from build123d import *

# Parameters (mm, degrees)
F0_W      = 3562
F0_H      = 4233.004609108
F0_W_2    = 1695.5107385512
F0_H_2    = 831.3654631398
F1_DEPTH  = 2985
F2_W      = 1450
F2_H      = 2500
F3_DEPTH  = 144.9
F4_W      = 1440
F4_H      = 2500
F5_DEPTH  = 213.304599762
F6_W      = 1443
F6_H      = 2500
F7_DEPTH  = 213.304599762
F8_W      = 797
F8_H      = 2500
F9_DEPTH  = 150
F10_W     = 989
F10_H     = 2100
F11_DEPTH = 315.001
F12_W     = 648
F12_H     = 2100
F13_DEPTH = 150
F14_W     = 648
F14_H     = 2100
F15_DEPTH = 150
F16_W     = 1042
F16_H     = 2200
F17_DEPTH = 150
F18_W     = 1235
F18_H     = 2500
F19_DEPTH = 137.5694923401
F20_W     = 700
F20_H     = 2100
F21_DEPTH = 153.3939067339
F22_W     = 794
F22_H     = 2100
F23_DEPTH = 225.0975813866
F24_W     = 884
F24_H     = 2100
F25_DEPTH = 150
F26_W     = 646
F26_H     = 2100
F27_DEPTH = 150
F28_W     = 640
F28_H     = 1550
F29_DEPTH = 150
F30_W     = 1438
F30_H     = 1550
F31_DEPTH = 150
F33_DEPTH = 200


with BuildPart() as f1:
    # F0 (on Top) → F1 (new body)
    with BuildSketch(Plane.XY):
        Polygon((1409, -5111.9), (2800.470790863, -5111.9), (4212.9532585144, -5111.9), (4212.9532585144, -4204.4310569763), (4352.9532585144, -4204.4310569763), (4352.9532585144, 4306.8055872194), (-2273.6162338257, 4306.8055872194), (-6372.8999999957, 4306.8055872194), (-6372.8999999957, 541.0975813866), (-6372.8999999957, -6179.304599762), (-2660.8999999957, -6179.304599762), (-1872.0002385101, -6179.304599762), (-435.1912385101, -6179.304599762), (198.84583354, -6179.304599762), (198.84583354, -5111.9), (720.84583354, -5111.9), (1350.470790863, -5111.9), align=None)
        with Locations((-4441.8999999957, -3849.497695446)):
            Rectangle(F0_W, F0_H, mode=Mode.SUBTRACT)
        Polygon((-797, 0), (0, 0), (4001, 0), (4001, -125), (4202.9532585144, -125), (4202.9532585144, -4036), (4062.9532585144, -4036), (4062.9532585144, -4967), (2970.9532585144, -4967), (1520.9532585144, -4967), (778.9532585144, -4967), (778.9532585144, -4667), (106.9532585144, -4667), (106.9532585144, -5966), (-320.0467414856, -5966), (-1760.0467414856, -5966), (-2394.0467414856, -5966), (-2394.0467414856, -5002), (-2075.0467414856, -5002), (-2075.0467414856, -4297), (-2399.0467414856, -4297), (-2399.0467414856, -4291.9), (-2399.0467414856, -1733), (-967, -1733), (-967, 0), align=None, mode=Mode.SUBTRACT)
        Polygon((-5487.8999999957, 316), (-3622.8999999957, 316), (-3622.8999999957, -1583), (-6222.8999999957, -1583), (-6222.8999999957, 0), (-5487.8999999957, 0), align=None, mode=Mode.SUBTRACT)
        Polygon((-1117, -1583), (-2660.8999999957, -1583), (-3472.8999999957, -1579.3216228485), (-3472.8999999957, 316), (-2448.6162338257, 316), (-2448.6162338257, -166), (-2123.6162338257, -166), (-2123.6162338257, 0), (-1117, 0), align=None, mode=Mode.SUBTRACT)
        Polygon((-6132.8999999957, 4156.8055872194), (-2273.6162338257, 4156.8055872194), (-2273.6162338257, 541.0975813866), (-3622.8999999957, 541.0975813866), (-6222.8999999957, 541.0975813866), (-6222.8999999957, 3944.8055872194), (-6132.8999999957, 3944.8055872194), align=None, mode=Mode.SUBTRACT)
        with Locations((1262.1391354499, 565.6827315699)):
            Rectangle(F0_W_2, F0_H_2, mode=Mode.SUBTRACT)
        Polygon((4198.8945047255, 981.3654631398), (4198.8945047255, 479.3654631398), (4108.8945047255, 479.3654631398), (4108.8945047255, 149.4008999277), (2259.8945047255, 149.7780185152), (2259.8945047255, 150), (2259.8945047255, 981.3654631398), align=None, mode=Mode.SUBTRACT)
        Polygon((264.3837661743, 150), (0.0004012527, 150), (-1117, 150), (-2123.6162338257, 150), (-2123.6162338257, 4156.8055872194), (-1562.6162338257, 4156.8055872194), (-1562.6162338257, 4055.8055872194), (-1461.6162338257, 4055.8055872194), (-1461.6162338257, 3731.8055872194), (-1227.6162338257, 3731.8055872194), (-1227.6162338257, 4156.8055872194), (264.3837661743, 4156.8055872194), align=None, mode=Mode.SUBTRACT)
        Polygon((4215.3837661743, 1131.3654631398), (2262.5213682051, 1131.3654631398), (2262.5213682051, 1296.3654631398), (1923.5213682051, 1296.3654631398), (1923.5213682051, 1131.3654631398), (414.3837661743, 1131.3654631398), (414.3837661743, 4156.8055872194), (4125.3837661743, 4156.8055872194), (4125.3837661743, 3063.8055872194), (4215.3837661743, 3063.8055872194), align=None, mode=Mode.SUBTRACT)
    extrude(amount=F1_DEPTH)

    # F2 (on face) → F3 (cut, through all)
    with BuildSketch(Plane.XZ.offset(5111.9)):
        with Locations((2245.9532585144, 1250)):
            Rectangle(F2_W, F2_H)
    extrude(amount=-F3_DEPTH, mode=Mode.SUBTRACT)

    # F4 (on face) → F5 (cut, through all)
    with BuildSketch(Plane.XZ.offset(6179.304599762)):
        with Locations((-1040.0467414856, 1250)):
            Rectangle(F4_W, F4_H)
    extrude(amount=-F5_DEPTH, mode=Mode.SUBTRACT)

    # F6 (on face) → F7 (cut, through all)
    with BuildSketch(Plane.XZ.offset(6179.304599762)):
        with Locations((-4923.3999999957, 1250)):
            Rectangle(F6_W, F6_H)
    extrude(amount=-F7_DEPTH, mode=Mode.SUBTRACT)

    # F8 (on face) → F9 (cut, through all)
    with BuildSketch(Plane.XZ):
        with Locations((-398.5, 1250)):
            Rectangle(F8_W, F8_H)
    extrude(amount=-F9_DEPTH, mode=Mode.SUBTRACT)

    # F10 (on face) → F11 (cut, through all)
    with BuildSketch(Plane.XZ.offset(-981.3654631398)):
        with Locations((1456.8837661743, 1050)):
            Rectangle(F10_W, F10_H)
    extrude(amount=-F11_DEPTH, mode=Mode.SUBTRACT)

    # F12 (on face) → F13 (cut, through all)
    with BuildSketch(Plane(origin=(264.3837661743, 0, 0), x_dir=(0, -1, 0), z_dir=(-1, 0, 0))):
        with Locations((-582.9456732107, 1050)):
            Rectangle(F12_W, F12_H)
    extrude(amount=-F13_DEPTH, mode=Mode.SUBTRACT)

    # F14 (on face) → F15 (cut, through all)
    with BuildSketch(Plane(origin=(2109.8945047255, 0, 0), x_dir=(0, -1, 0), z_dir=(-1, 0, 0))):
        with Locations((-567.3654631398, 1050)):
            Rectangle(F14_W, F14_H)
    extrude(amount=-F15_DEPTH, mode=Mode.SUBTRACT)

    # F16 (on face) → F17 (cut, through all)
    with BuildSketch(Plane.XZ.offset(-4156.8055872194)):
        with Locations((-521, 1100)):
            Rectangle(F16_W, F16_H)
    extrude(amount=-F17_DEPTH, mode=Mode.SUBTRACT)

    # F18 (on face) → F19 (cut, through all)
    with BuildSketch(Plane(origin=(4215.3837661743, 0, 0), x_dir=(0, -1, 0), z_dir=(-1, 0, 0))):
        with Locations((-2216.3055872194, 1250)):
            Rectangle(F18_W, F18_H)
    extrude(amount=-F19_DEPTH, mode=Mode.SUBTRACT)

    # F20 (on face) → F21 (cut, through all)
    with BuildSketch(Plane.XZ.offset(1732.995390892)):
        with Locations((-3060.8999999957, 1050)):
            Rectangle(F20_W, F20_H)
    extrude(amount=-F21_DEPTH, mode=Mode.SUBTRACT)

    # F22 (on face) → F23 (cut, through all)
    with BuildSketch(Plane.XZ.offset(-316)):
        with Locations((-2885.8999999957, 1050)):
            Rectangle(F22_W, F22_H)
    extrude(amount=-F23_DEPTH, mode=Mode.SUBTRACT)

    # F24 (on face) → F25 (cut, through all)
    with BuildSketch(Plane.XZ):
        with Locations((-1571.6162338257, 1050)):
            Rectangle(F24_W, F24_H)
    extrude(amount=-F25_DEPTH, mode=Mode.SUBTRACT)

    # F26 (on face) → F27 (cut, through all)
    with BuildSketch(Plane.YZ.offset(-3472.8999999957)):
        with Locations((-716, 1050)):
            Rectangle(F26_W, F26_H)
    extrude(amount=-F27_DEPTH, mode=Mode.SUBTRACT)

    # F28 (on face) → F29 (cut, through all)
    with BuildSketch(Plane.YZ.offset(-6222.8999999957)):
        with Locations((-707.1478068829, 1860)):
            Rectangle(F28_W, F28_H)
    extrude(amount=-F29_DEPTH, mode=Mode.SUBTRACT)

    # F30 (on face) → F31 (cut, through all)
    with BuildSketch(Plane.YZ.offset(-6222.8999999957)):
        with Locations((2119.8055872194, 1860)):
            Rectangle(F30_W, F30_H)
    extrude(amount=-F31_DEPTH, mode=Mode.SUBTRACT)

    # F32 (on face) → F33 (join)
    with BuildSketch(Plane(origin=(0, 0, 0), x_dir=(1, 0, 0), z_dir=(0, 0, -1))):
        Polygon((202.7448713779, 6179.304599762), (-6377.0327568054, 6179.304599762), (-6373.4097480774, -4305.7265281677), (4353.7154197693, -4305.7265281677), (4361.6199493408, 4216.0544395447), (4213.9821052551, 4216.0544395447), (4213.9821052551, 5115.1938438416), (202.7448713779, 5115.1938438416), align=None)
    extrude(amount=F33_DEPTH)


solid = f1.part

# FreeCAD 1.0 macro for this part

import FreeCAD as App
import Part
import Sketcher

V = App.Vector
Q = App.Units.Quantity

doc = App.newDocument("Part")
body = doc.addObject("PartDesign::Body", "Body")

# Sketch on XY plane
sketch1 = body.newObject("Sketcher::SketchObject", "Sketch")
sketch1.AttachmentSupport = (doc.getObject("XY_Plane"), [""])
sketch1.MapMode = "FlatFace"
sketch1.addGeometry([
    Part.LineSegment(V(4212.953259, -5111.9, 0), V(4212.953259, -4204.431057, 0)),  # 0
    Part.LineSegment(V(4212.953259, -4204.431057, 0), V(4352.953259, -4204.431057, 0)),  # 1
    Part.LineSegment(V(4352.953259, -4204.431057, 0), V(4352.953259, 4306.805587, 0)),  # 2
    Part.LineSegment(V(4352.953259, 4306.805587, 0), V(-6372.9, 4306.805587, 0)),  # 3
    Part.LineSegment(V(-6372.9, 4306.805587, 0), V(-6372.9, -6179.3046, 0)),  # 4
    Part.LineSegment(V(-6372.9, -6179.3046, 0), V(198.845834, -6179.3046, 0)),  # 5
    Part.LineSegment(V(198.845834, -6179.3046, 0), V(198.845834, -5111.9, 0)),  # 6
    Part.LineSegment(V(198.845834, -5111.9, 0), V(4212.953259, -5111.9, 0)),  # 7
    Part.LineSegment(V(-2660.9, -5966, 0), V(-6222.9, -5966, 0)),  # 8
    Part.LineSegment(V(-6222.9, -5966, 0), V(-6222.9, -1732.995391, 0)),  # 9
    Part.LineSegment(V(-6222.9, -1732.995391, 0), V(-2660.9, -1732.995391, 0)),  # 10
    Part.LineSegment(V(-2660.9, -1732.995391, 0), V(-2660.9, -5966, 0)),  # 11
    Part.LineSegment(V(-967, 0, 0), V(4001, 0, 0)),  # 12
    Part.LineSegment(V(4001, 0, 0), V(4001, -125, 0)),  # 13
    Part.LineSegment(V(4001, -125, 0), V(4202.953259, -125, 0)),  # 14
    Part.LineSegment(V(4202.953259, -125, 0), V(4202.953259, -4036, 0)),  # 15
    Part.LineSegment(V(4202.953259, -4036, 0), V(4062.953259, -4036, 0)),  # 16
    Part.LineSegment(V(4062.953259, -4036, 0), V(4062.953259, -4967, 0)),  # 17
    Part.LineSegment(V(4062.953259, -4967, 0), V(778.953259, -4967, 0)),  # 18
    Part.LineSegment(V(778.953259, -4967, 0), V(778.953259, -4667, 0)),  # 19
    Part.LineSegment(V(778.953259, -4667, 0), V(106.953259, -4667, 0)),  # 20
    Part.LineSegment(V(106.953259, -4667, 0), V(106.953259, -5966, 0)),  # 21
    Part.LineSegment(V(106.953259, -5966, 0), V(-2394.046741, -5966, 0)),  # 22
    Part.LineSegment(V(-2394.046741, -5966, 0), V(-2394.046741, -5002, 0)),  # 23
    Part.LineSegment(V(-2394.046741, -5002, 0), V(-2075.046741, -5002, 0)),  # 24
    Part.LineSegment(V(-2075.046741, -5002, 0), V(-2075.046741, -4297, 0)),  # 25
    Part.LineSegment(V(-2075.046741, -4297, 0), V(-2399.046741, -4297, 0)),  # 26
    Part.LineSegment(V(-2399.046741, -4297, 0), V(-2399.046741, -1733, 0)),  # 27
    Part.LineSegment(V(-2399.046741, -1733, 0), V(-967, -1733, 0)),  # 28
    Part.LineSegment(V(-967, -1733, 0), V(-967, 0, 0)),  # 29
    Part.LineSegment(V(-5487.9, 0, 0), V(-5487.9, 316, 0)),  # 30
    Part.LineSegment(V(-5487.9, 316, 0), V(-3622.9, 316, 0)),  # 31
    Part.LineSegment(V(-3622.9, 316, 0), V(-3622.9, -1583, 0)),  # 32
    Part.LineSegment(V(-3622.9, -1583, 0), V(-6222.9, -1583, 0)),  # 33
    Part.LineSegment(V(-6222.9, -1583, 0), V(-6222.9, 0, 0)),  # 34
    Part.LineSegment(V(-6222.9, 0, 0), V(-5487.9, 0, 0)),  # 35
    Part.LineSegment(V(-1117, 0, 0), V(-1117, -1583, 0)),  # 36
    Part.LineSegment(V(-1117, -1583, 0), V(-2660.9, -1583, 0)),  # 37
    Part.LineSegment(V(-2660.9, -1583, 0), V(-3472.9, -1579.321623, 0)),  # 38
    Part.LineSegment(V(-3472.9, -1579.321623, 0), V(-3472.9, 316, 0)),  # 39
    Part.LineSegment(V(-3472.9, 316, 0), V(-2448.616234, 316, 0)),  # 40
    Part.LineSegment(V(-2448.616234, 316, 0), V(-2448.616234, -166, 0)),  # 41
    Part.LineSegment(V(-2448.616234, -166, 0), V(-2123.616234, -166, 0)),  # 42
    Part.LineSegment(V(-2123.616234, -166, 0), V(-2123.616234, 0, 0)),  # 43
    Part.LineSegment(V(-2123.616234, 0, 0), V(-1117, 0, 0)),  # 44
    Part.LineSegment(V(-6132.9, 3944.805587, 0), V(-6132.9, 4156.805587, 0)),  # 45
    Part.LineSegment(V(-6132.9, 4156.805587, 0), V(-2273.616234, 4156.805587, 0)),  # 46
    Part.LineSegment(V(-2273.616234, 4156.805587, 0), V(-2273.616234, 541.097581, 0)),  # 47
    Part.LineSegment(V(-2273.616234, 541.097581, 0), V(-6222.9, 541.097581, 0)),  # 48
    Part.LineSegment(V(-6222.9, 541.097581, 0), V(-6222.9, 3944.805587, 0)),  # 49
    Part.LineSegment(V(-6222.9, 3944.805587, 0), V(-6132.9, 3944.805587, 0)),  # 50
    Part.LineSegment(V(2109.894505, 150, 0), V(414.383766, 150, 0)),  # 51
    Part.LineSegment(V(414.383766, 150, 0), V(414.383766, 981.365463, 0)),  # 52
    Part.LineSegment(V(414.383766, 981.365463, 0), V(2109.894505, 981.365463, 0)),  # 53
    Part.LineSegment(V(2109.894505, 981.365463, 0), V(2109.894505, 150, 0)),  # 54
    Part.LineSegment(V(2259.894505, 981.365463, 0), V(4198.894505, 981.365463, 0)),  # 55
    Part.LineSegment(V(4198.894505, 981.365463, 0), V(4198.894505, 479.365463, 0)),  # 56
    Part.LineSegment(V(4198.894505, 479.365463, 0), V(4108.894505, 479.365463, 0)),  # 57
    Part.LineSegment(V(4108.894505, 479.365463, 0), V(4108.894505, 149.4009, 0)),  # 58
    Part.LineSegment(V(4108.894505, 149.4009, 0), V(2259.894505, 149.778019, 0)),  # 59
    Part.LineSegment(V(2259.894505, 149.778019, 0), V(2259.894505, 981.365463, 0)),  # 60
    Part.LineSegment(V(264.383766, 4156.805587, 0), V(264.383766, 150, 0)),  # 61
    Part.LineSegment(V(264.383766, 150, 0), V(-2123.616234, 150, 0)),  # 62
    Part.LineSegment(V(-2123.616234, 150, 0), V(-2123.616234, 4156.805587, 0)),  # 63
    Part.LineSegment(V(-2123.616234, 4156.805587, 0), V(-1562.616234, 4156.805587, 0)),  # 64
    Part.LineSegment(V(-1562.616234, 4156.805587, 0), V(-1562.616234, 4055.805587, 0)),  # 65
    Part.LineSegment(V(-1562.616234, 4055.805587, 0), V(-1461.616234, 4055.805587, 0)),  # 66
    Part.LineSegment(V(-1461.616234, 4055.805587, 0), V(-1461.616234, 3731.805587, 0)),  # 67
    Part.LineSegment(V(-1461.616234, 3731.805587, 0), V(-1227.616234, 3731.805587, 0)),  # 68
    Part.LineSegment(V(-1227.616234, 3731.805587, 0), V(-1227.616234, 4156.805587, 0)),  # 69
    Part.LineSegment(V(-1227.616234, 4156.805587, 0), V(264.383766, 4156.805587, 0)),  # 70
    Part.LineSegment(V(4215.383766, 3063.805587, 0), V(4215.383766, 1131.365463, 0)),  # 71
    Part.LineSegment(V(4215.383766, 1131.365463, 0), V(2262.521368, 1131.365463, 0)),  # 72
    Part.LineSegment(V(2262.521368, 1131.365463, 0), V(2262.521368, 1296.365463, 0)),  # 73
    Part.LineSegment(V(2262.521368, 1296.365463, 0), V(1923.521368, 1296.365463, 0)),  # 74
    Part.LineSegment(V(1923.521368, 1296.365463, 0), V(1923.521368, 1131.365463, 0)),  # 75
    Part.LineSegment(V(1923.521368, 1131.365463, 0), V(414.383766, 1131.365463, 0)),  # 76
    Part.LineSegment(V(414.383766, 1131.365463, 0), V(414.383766, 4156.805587, 0)),  # 77
    Part.LineSegment(V(414.383766, 4156.805587, 0), V(4125.383766, 4156.805587, 0)),  # 78
    Part.LineSegment(V(4125.383766, 4156.805587, 0), V(4125.383766, 3063.805587, 0)),  # 79
    Part.LineSegment(V(4125.383766, 3063.805587, 0), V(4215.383766, 3063.805587, 0)),  # 80
], False)
sketch1.addConstraint([
    Sketcher.Constraint("Coincident", 0, 2, 1, 1),
    Sketcher.Constraint("Coincident", 1, 2, 2, 1),
    Sketcher.Constraint("Coincident", 2, 2, 3, 1),
    Sketcher.Constraint("Coincident", 3, 2, 4, 1),
    Sketcher.Constraint("Coincident", 4, 2, 5, 1),
    Sketcher.Constraint("Coincident", 5, 2, 6, 1),
    Sketcher.Constraint("Coincident", 6, 2, 7, 1),
    Sketcher.Constraint("Coincident", 7, 2, 0, 1),
    Sketcher.Constraint("Coincident", 8, 2, 9, 1),
    Sketcher.Constraint("Coincident", 9, 2, 10, 1),
    Sketcher.Constraint("Coincident", 10, 2, 11, 1),
    Sketcher.Constraint("Coincident", 11, 2, 8, 1),
    Sketcher.Constraint("Coincident", 12, 2, 13, 1),
    Sketcher.Constraint("Coincident", 13, 2, 14, 1),
    Sketcher.Constraint("Coincident", 14, 2, 15, 1),
    Sketcher.Constraint("Coincident", 15, 2, 16, 1),
    Sketcher.Constraint("Coincident", 16, 2, 17, 1),
    Sketcher.Constraint("Coincident", 17, 2, 18, 1),
    Sketcher.Constraint("Coincident", 18, 2, 19, 1),
    Sketcher.Constraint("Coincident", 19, 2, 20, 1),
    Sketcher.Constraint("Coincident", 20, 2, 21, 1),
    Sketcher.Constraint("Coincident", 21, 2, 22, 1),
    Sketcher.Constraint("Coincident", 22, 2, 23, 1),
    Sketcher.Constraint("Coincident", 23, 2, 24, 1),
    Sketcher.Constraint("Coincident", 24, 2, 25, 1),
    Sketcher.Constraint("Coincident", 25, 2, 26, 1),
    Sketcher.Constraint("Coincident", 26, 2, 27, 1),
    Sketcher.Constraint("Coincident", 27, 2, 28, 1),
    Sketcher.Constraint("Coincident", 28, 2, 29, 1),
    Sketcher.Constraint("Coincident", 29, 2, 12, 1),
    Sketcher.Constraint("Coincident", 30, 2, 31, 1),
    Sketcher.Constraint("Coincident", 31, 2, 32, 1),
    Sketcher.Constraint("Coincident", 32, 2, 33, 1),
    Sketcher.Constraint("Coincident", 33, 2, 34, 1),
    Sketcher.Constraint("Coincident", 34, 2, 35, 1),
    Sketcher.Constraint("Coincident", 35, 2, 30, 1),
    Sketcher.Constraint("Coincident", 36, 2, 37, 1),
    Sketcher.Constraint("Coincident", 37, 2, 38, 1),
    Sketcher.Constraint("Coincident", 38, 2, 39, 1),
    Sketcher.Constraint("Coincident", 39, 2, 40, 1),
    Sketcher.Constraint("Coincident", 40, 2, 41, 1),
    Sketcher.Constraint("Coincident", 41, 2, 42, 1),
    Sketcher.Constraint("Coincident", 42, 2, 43, 1),
    Sketcher.Constraint("Coincident", 43, 2, 44, 1),
    Sketcher.Constraint("Coincident", 44, 2, 36, 1),
    Sketcher.Constraint("Coincident", 45, 2, 46, 1),
    Sketcher.Constraint("Coincident", 46, 2, 47, 1),
    Sketcher.Constraint("Coincident", 47, 2, 48, 1),
    Sketcher.Constraint("Coincident", 48, 2, 49, 1),
    Sketcher.Constraint("Coincident", 49, 2, 50, 1),
    Sketcher.Constraint("Coincident", 50, 2, 45, 1),
    Sketcher.Constraint("Coincident", 51, 2, 52, 1),
    Sketcher.Constraint("Coincident", 52, 2, 53, 1),
    Sketcher.Constraint("Coincident", 53, 2, 54, 1),
    Sketcher.Constraint("Coincident", 54, 2, 51, 1),
    Sketcher.Constraint("Coincident", 55, 2, 56, 1),
    Sketcher.Constraint("Coincident", 56, 2, 57, 1),
    Sketcher.Constraint("Coincident", 57, 2, 58, 1),
    Sketcher.Constraint("Coincident", 58, 2, 59, 1),
    Sketcher.Constraint("Coincident", 59, 2, 60, 1),
    Sketcher.Constraint("Coincident", 60, 2, 55, 1),
    Sketcher.Constraint("Coincident", 61, 2, 62, 1),
    Sketcher.Constraint("Coincident", 62, 2, 63, 1),
    Sketcher.Constraint("Coincident", 63, 2, 64, 1),
    Sketcher.Constraint("Coincident", 64, 2, 65, 1),
    Sketcher.Constraint("Coincident", 65, 2, 66, 1),
    Sketcher.Constraint("Coincident", 66, 2, 67, 1),
    Sketcher.Constraint("Coincident", 67, 2, 68, 1),
    Sketcher.Constraint("Coincident", 68, 2, 69, 1),
    Sketcher.Constraint("Coincident", 69, 2, 70, 1),
    Sketcher.Constraint("Coincident", 70, 2, 61, 1),
    Sketcher.Constraint("Coincident", 71, 2, 72, 1),
    Sketcher.Constraint("Coincident", 72, 2, 73, 1),
    Sketcher.Constraint("Coincident", 73, 2, 74, 1),
    Sketcher.Constraint("Coincident", 74, 2, 75, 1),
    Sketcher.Constraint("Coincident", 75, 2, 76, 1),
    Sketcher.Constraint("Coincident", 76, 2, 77, 1),
    Sketcher.Constraint("Coincident", 77, 2, 78, 1),
    Sketcher.Constraint("Coincident", 78, 2, 79, 1),
    Sketcher.Constraint("Coincident", 79, 2, 80, 1),
    Sketcher.Constraint("Coincident", 80, 2, 71, 1),
    Sketcher.Constraint("Vertical", 0),
    Sketcher.Constraint("Horizontal", 1),
    Sketcher.Constraint("Vertical", 2),
    Sketcher.Constraint("Horizontal", 3),
    Sketcher.Constraint("Vertical", 4),
    Sketcher.Constraint("Horizontal", 5),
    Sketcher.Constraint("Vertical", 6),
    Sketcher.Constraint("Horizontal", 7),
    Sketcher.Constraint("Horizontal", 8),
    Sketcher.Constraint("Vertical", 9),
    Sketcher.Constraint("Horizontal", 10),
    Sketcher.Constraint("Vertical", 11),
    Sketcher.Constraint("Horizontal", 12),
    Sketcher.Constraint("Vertical", 13),
    Sketcher.Constraint("Horizontal", 14),
    Sketcher.Constraint("Vertical", 15),
    Sketcher.Constraint("Horizontal", 16),
    Sketcher.Constraint("Vertical", 17),
    Sketcher.Constraint("Horizontal", 18),
    Sketcher.Constraint("Vertical", 19),
    Sketcher.Constraint("Horizontal", 20),
    Sketcher.Constraint("Vertical", 21),
    Sketcher.Constraint("Horizontal", 22),
    Sketcher.Constraint("Vertical", 23),
    Sketcher.Constraint("Horizontal", 24),
    Sketcher.Constraint("Vertical", 25),
    Sketcher.Constraint("Horizontal", 26),
    Sketcher.Constraint("Vertical", 27),
    Sketcher.Constraint("Horizontal", 28),
    Sketcher.Constraint("Vertical", 29),
    Sketcher.Constraint("Vertical", 30),
    Sketcher.Constraint("Horizontal", 31),
    Sketcher.Constraint("Vertical", 32),
    Sketcher.Constraint("Horizontal", 33),
    Sketcher.Constraint("Vertical", 34),
    Sketcher.Constraint("Horizontal", 35),
    Sketcher.Constraint("Vertical", 36),
    Sketcher.Constraint("Horizontal", 37),
    Sketcher.Constraint("Vertical", 39),
    Sketcher.Constraint("Horizontal", 40),
    Sketcher.Constraint("Vertical", 41),
    Sketcher.Constraint("Horizontal", 42),
    Sketcher.Constraint("Vertical", 43),
    Sketcher.Constraint("Horizontal", 44),
    Sketcher.Constraint("Vertical", 45),
    Sketcher.Constraint("Horizontal", 46),
    Sketcher.Constraint("Vertical", 47),
    Sketcher.Constraint("Horizontal", 48),
    Sketcher.Constraint("Vertical", 49),
    Sketcher.Constraint("Horizontal", 50),
    Sketcher.Constraint("Horizontal", 51),
    Sketcher.Constraint("Vertical", 52),
    Sketcher.Constraint("Horizontal", 53),
    Sketcher.Constraint("Vertical", 54),
    Sketcher.Constraint("Horizontal", 55),
    Sketcher.Constraint("Vertical", 56),
    Sketcher.Constraint("Horizontal", 57),
    Sketcher.Constraint("Vertical", 58),
    Sketcher.Constraint("Vertical", 60),
    Sketcher.Constraint("Vertical", 61),
    Sketcher.Constraint("Horizontal", 62),
    Sketcher.Constraint("Vertical", 63),
    Sketcher.Constraint("Horizontal", 64),
    Sketcher.Constraint("Vertical", 65),
    Sketcher.Constraint("Horizontal", 66),
    Sketcher.Constraint("Vertical", 67),
    Sketcher.Constraint("Horizontal", 68),
    Sketcher.Constraint("Vertical", 69),
    Sketcher.Constraint("Horizontal", 70),
    Sketcher.Constraint("Vertical", 71),
    Sketcher.Constraint("Horizontal", 72),
    Sketcher.Constraint("Vertical", 73),
    Sketcher.Constraint("Horizontal", 74),
    Sketcher.Constraint("Vertical", 75),
    Sketcher.Constraint("Horizontal", 76),
    Sketcher.Constraint("Vertical", 77),
    Sketcher.Constraint("Horizontal", 78),
    Sketcher.Constraint("Vertical", 79),
    Sketcher.Constraint("Horizontal", 80),
    Sketcher.Constraint("PointOnObject", 12, 2, -1),
    Sketcher.Constraint("PointOnObject", 34, 2, -1),
    Sketcher.Constraint("PointOnObject", 43, 2, -1),
    Sketcher.Constraint("Horizontal", 11, 2, 21, 2),
    Sketcher.Constraint("Horizontal", 33, 2, 36, 2),
    Sketcher.Constraint("Horizontal", 31, 2, 39, 2),
    Sketcher.Constraint("Horizontal", 53, 2, 55, 2),
    Sketcher.Constraint("Horizontal", 54, 2, 61, 2),
    Sketcher.Constraint("Horizontal", 46, 2, 63, 2),
    Sketcher.Constraint("Horizontal", 64, 2, 69, 2),
    Sketcher.Constraint("Horizontal", 72, 2, 75, 2),
    Sketcher.Constraint("Horizontal", 70, 2, 77, 2),
    Sketcher.Constraint("Vertical", 9, 2, 33, 2),
    Sketcher.Constraint("Vertical", 11, 2, 37, 2),
    Sketcher.Constraint("Vertical", 34, 2, 48, 2),
    Sketcher.Constraint("Vertical", 43, 2, 62, 2),
    Sketcher.Constraint("Vertical", 52, 2, 76, 2),
    Sketcher.Constraint("Equal", 1, 16),
    Sketcher.Constraint("Equal", 50, 57),
    Sketcher.Constraint("Equal", 57, 80),
    Sketcher.Constraint("Equal", 66, 65),
    Sketcher.Constraint("Equal", 26, 67),
    Sketcher.Constraint("DistanceX", 1, 1, 1, 2, Q("140 mm")),
    Sketcher.Constraint("DistanceX", 8, 2, 8, 1, Q("3562 mm")),
    Sketcher.Constraint("DistanceX", 12, 1, 12, 2, Q("4968 mm")),
    Sketcher.Constraint("DistanceX", 18, 2, 18, 1, Q("3284 mm")),
    Sketcher.Constraint("DistanceX", 20, 2, 20, 1, Q("672 mm")),
    Sketcher.Constraint("DistanceX", 22, 2, 22, 1, Q("2501 mm")),
    Sketcher.Constraint("DistanceX", 24, 1, 24, 2, Q("319 mm")),
    Sketcher.Constraint("DistanceX", 26, 2, 26, 1, Q("324 mm")),
    Sketcher.Constraint("DistanceX", 31, 1, 31, 2, Q("1865 mm")),
    Sketcher.Constraint("DistanceX", 33, 2, 33, 1, Q("2600 mm")),
    Sketcher.Constraint("DistanceX", 42, 1, 42, 2, Q("325 mm")),
    Sketcher.Constraint("DistanceX", 50, 1, 50, 2, Q("90 mm")),
    Sketcher.Constraint("DistanceX", 55, 1, 55, 2, Q("1939 mm")),
    Sketcher.Constraint("DistanceX", 62, 2, 62, 1, Q("2388 mm")),
    Sketcher.Constraint("DistanceX", 64, 1, 64, 2, Q("561 mm")),
    Sketcher.Constraint("DistanceX", 66, 1, 66, 2, Q("101 mm")),
    Sketcher.Constraint("DistanceX", 68, 1, 68, 2, Q("234 mm")),
    Sketcher.Constraint("DistanceX", 74, 2, 74, 1, Q("339 mm")),
    Sketcher.Constraint("DistanceX", 78, 1, 78, 2, Q("3711 mm")),
    Sketcher.Constraint("DistanceY", 13, 2, 13, 1, Q("125 mm")),
    Sketcher.Constraint("DistanceY", 15, 2, 15, 1, Q("3911 mm")),
    Sketcher.Constraint("DistanceY", 17, 2, 17, 1, Q("931 mm")),
    Sketcher.Constraint("DistanceY", 19, 1, 19, 2, Q("300 mm")),
    Sketcher.Constraint("DistanceY", 21, 2, 21, 1, Q("1299 mm")),
    Sketcher.Constraint("DistanceY", 23, 1, 23, 2, Q("964 mm")),
    Sketcher.Constraint("DistanceY", 25, 1, 25, 2, Q("705 mm")),
    Sketcher.Constraint("DistanceY", 27, 1, 27, 2, Q("2564 mm")),
    Sketcher.Constraint("DistanceY", 30, 1, 30, 2, Q("316 mm")),
    Sketcher.Constraint("DistanceY", 32, 2, 32, 1, Q("1899 mm")),
    Sketcher.Constraint("DistanceY", 41, 2, 41, 1, Q("482 mm")),
    Sketcher.Constraint("DistanceY", 45, 1, 45, 2, Q("212 mm")),
    Sketcher.Constraint("DistanceY", 56, 2, 56, 1, Q("502 mm")),
    Sketcher.Constraint("DistanceY", 73, 1, 73, 2, Q("165 mm")),
    Sketcher.Constraint("DistanceY", 79, 2, 79, 1, Q("1093 mm")),
    Sketcher.Constraint("DistanceX", 37, 2, 37, 1, Q("1543.9 mm")),
    Sketcher.Constraint("DistanceX", -1, 1, 12, 2, Q("4001 mm")),
    Sketcher.Constraint("DistanceX", 36, 2, -1, 1, Q("1117 mm")),
    Sketcher.Constraint("DistanceY", -1, 1, 51, 2, Q("150 mm")),
    Sketcher.Constraint("DistanceX", 3, 2, -1, 1, Q("6372.9 mm")),
    Sketcher.Constraint("DistanceY", 6, 2, -1, 1, Q("5111.9 mm")),
    Sketcher.Constraint("DistanceX", 38, 2, -1, 1, Q("3472.9 mm")),
    Sketcher.Constraint("DistanceY", 6, 1, 6, 2, Q("1067.4046 mm")),
    Sketcher.Constraint("DistanceX", 3, 2, 3, 1, Q("10725.853259 mm")),
    Sketcher.Constraint("DistanceX", 14, 1, 14, 2, Q("201.953259 mm")),
    Sketcher.Constraint("DistanceX", 51, 2, 51, 1, Q("1695.510739 mm")),
    Sketcher.Constraint("DistanceY", 9, 1, 9, 2, Q("4233.004609 mm")),
    Sketcher.Constraint("DistanceY", -1, 1, 58, 2, Q("149.4009 mm")),
    Sketcher.Constraint("Distance", 38, Q("812.008332 mm")),
    Sketcher.Constraint("DistanceX", 5, 1, 5, 2, Q("6571.745834 mm")),
    Sketcher.Constraint("DistanceX", 40, 1, 40, 2, Q("1024.283766 mm")),
    Sketcher.Constraint("DistanceX", 46, 1, 46, 2, Q("3859.283766 mm")),
    Sketcher.Constraint("DistanceX", 72, 2, 72, 1, Q("1952.862398 mm")),
    Sketcher.Constraint("DistanceY", 0, 1, 0, 2, Q("907.468943 mm")),
    Sketcher.Constraint("DistanceY", 2, 1, 2, 2, Q("8511.236644 mm")),
    Sketcher.Constraint("DistanceY", 47, 2, 47, 1, Q("3615.708006 mm")),
    Sketcher.Constraint("DistanceY", 52, 1, 52, 2, Q("831.365463 mm")),
    Sketcher.Constraint("DistanceY", 60, 1, 60, 2, Q("831.587445 mm")),
    Sketcher.Constraint("DistanceY", 61, 2, 61, 1, Q("4006.805587 mm")),
    Sketcher.Constraint("DistanceY", 71, 2, 71, 1, Q("1932.440124 mm")),
    Sketcher.Constraint("DistanceX", -1, 1, 72, 2, Q("2262.521368 mm")),
    Sketcher.Constraint("DistanceX", -1, 1, 55, 2, Q("4198.894505 mm")),
])
pad1 = body.newObject("PartDesign::Pad", "Pad")
pad1.Profile = sketch1
pad1.Length = 2985

# Sketch on XZ plane
sketch2 = body.newObject("Sketcher::SketchObject", "Sketch001")
sketch2.AttachmentSupport = (doc.getObject("XZ_Plane"), [""])
sketch2.MapMode = "FlatFace"
sketch2.AttachmentOffset = App.Placement(V(0, 0, 5111.9), App.Rotation())
sketch2.addGeometry([
    Part.LineSegment(V(1521, 2500, 0), V(1521, 0, 0)),
    Part.LineSegment(V(1521, 0, 0), V(2971, 0, 0)),
    Part.LineSegment(V(2971, 0, 0), V(2971, 2500, 0)),
    Part.LineSegment(V(2971, 2500, 0), V(1521, 2500, 0)),
], False)
sketch2.addConstraint([
    Sketcher.Constraint("Coincident", 0, 2, 1, 1),
    Sketcher.Constraint("Coincident", 1, 2, 2, 1),
    Sketcher.Constraint("Coincident", 2, 2, 3, 1),
    Sketcher.Constraint("Coincident", 3, 2, 0, 1),
    Sketcher.Constraint("Vertical", 0),
    Sketcher.Constraint("Horizontal", 1),
    Sketcher.Constraint("Vertical", 2),
    Sketcher.Constraint("Horizontal", 3),
    Sketcher.Constraint("PointOnObject", 0, 2, -1),
    Sketcher.Constraint("DistanceX", 1, 1, 1, 2, Q("1450 mm")),
    Sketcher.Constraint("DistanceY", 0, 2, 0, 1, Q("2500 mm")),
    Sketcher.Constraint("DistanceX", -1, 1, 0, 2, Q("1520.953259 mm")),
])
pocket1 = body.newObject("PartDesign::Pocket", "Pocket")
pocket1.Profile = sketch2
pocket1.Length = 144.9

# Sketch on XZ plane
sketch3 = body.newObject("Sketcher::SketchObject", "Sketch002")
sketch3.AttachmentSupport = (doc.getObject("XZ_Plane"), [""])
sketch3.MapMode = "FlatFace"
sketch3.AttachmentOffset = App.Placement(V(0, 0, 6179.3046), App.Rotation())
sketch3.addGeometry([
    Part.LineSegment(V(-1760, 2500, 0), V(-1760, 0, 0)),
    Part.LineSegment(V(-1760, 0, 0), V(-320, 0, 0)),
    Part.LineSegment(V(-320, 0, 0), V(-320, 2500, 0)),
    Part.LineSegment(V(-320, 2500, 0), V(-1760, 2500, 0)),
], False)
sketch3.addConstraint([
    Sketcher.Constraint("Coincident", 0, 2, 1, 1),
    Sketcher.Constraint("Coincident", 1, 2, 2, 1),
    Sketcher.Constraint("Coincident", 2, 2, 3, 1),
    Sketcher.Constraint("Coincident", 3, 2, 0, 1),
    Sketcher.Constraint("Vertical", 0),
    Sketcher.Constraint("Horizontal", 1),
    Sketcher.Constraint("Vertical", 2),
    Sketcher.Constraint("Horizontal", 3),
    Sketcher.Constraint("PointOnObject", 0, 2, -1),
    Sketcher.Constraint("DistanceX", 1, 1, 1, 2, Q("1440 mm")),
    Sketcher.Constraint("DistanceY", 0, 2, 0, 1, Q("2500 mm")),
    Sketcher.Constraint("DistanceX", 0, 2, -1, 1, Q("1760.046741 mm")),
])
pocket2 = body.newObject("PartDesign::Pocket", "Pocket001")
pocket2.Profile = sketch3
pocket2.Length = 213.3046

# Sketch on XZ plane
sketch4 = body.newObject("Sketcher::SketchObject", "Sketch003")
sketch4.AttachmentSupport = (doc.getObject("XZ_Plane"), [""])
sketch4.MapMode = "FlatFace"
sketch4.AttachmentOffset = App.Placement(V(0, 0, 6179.3046), App.Rotation())
sketch4.addGeometry([
    Part.LineSegment(V(-5645, 2500, 0), V(-5645, 0, 0)),
    Part.LineSegment(V(-5645, 0, 0), V(-4202, 0, 0)),
    Part.LineSegment(V(-4202, 0, 0), V(-4202, 2500, 0)),
    Part.LineSegment(V(-4202, 2500, 0), V(-5645, 2500, 0)),
], False)
sketch4.addConstraint([
    Sketcher.Constraint("Coincident", 0, 2, 1, 1),
    Sketcher.Constraint("Coincident", 1, 2, 2, 1),
    Sketcher.Constraint("Coincident", 2, 2, 3, 1),
    Sketcher.Constraint("Coincident", 3, 2, 0, 1),
    Sketcher.Constraint("Vertical", 0),
    Sketcher.Constraint("Horizontal", 1),
    Sketcher.Constraint("Vertical", 2),
    Sketcher.Constraint("Horizontal", 3),
    Sketcher.Constraint("PointOnObject", 0, 2, -1),
    Sketcher.Constraint("DistanceX", 1, 1, 1, 2, Q("1443 mm")),
    Sketcher.Constraint("DistanceY", 0, 2, 0, 1, Q("2500 mm")),
    Sketcher.Constraint("DistanceX", 0, 2, -1, 1, Q("5644.9 mm")),
])
pocket3 = body.newObject("PartDesign::Pocket", "Pocket002")
pocket3.Profile = sketch4
pocket3.Length = 213.3046

# Sketch on XZ plane
sketch5 = body.newObject("Sketcher::SketchObject", "Sketch004")
sketch5.AttachmentSupport = (doc.getObject("XZ_Plane"), [""])
sketch5.MapMode = "FlatFace"
sketch5.addGeometry([
    Part.LineSegment(V(-797, 2500, 0), V(-797, 0, 0)),
    Part.LineSegment(V(-797, 0, 0), V(0, 0, 0)),
    Part.LineSegment(V(0, 0, 0), V(0, 2500, 0)),
    Part.LineSegment(V(0, 2500, 0), V(-797, 2500, 0)),
], False)
sketch5.addConstraint([
    Sketcher.Constraint("Coincident", 0, 2, 1, 1),
    Sketcher.Constraint("Coincident", 1, 2, 2, 1),
    Sketcher.Constraint("Coincident", 2, 2, 3, 1),
    Sketcher.Constraint("Coincident", 3, 2, 0, 1),
    Sketcher.Constraint("Vertical", 0),
    Sketcher.Constraint("Horizontal", 1),
    Sketcher.Constraint("Vertical", 2),
    Sketcher.Constraint("Horizontal", 3),
    Sketcher.Constraint("Coincident", 1, 2, -1, 1),
    Sketcher.Constraint("DistanceX", 1, 1, 1, 2, Q("797 mm")),
    Sketcher.Constraint("DistanceY", 0, 2, 0, 1, Q("2500 mm")),
])
pocket4 = body.newObject("PartDesign::Pocket", "Pocket003")
pocket4.Profile = sketch5
pocket4.Length = 150

# Sketch on XZ plane
sketch6 = body.newObject("Sketcher::SketchObject", "Sketch005")
sketch6.AttachmentSupport = (doc.getObject("XZ_Plane"), [""])
sketch6.MapMode = "FlatFace"
sketch6.AttachmentOffset = App.Placement(V(0, 0, -981.365463), App.Rotation())
sketch6.addGeometry([
    Part.LineSegment(V(962, 2100, 0), V(962, 0, 0)),
    Part.LineSegment(V(962, 0, 0), V(1951, 0, 0)),
    Part.LineSegment(V(1951, 0, 0), V(1951, 2100, 0)),
    Part.LineSegment(V(1951, 2100, 0), V(962, 2100, 0)),
], False)
sketch6.addConstraint([
    Sketcher.Constraint("Coincident", 0, 2, 1, 1),
    Sketcher.Constraint("Coincident", 1, 2, 2, 1),
    Sketcher.Constraint("Coincident", 2, 2, 3, 1),
    Sketcher.Constraint("Coincident", 3, 2, 0, 1),
    Sketcher.Constraint("Vertical", 0),
    Sketcher.Constraint("Horizontal", 1),
    Sketcher.Constraint("Vertical", 2),
    Sketcher.Constraint("Horizontal", 3),
    Sketcher.Constraint("PointOnObject", 0, 2, -1),
    Sketcher.Constraint("DistanceX", 1, 1, 1, 2, Q("989 mm")),
    Sketcher.Constraint("DistanceY", 0, 2, 0, 1, Q("2100 mm")),
    Sketcher.Constraint("DistanceX", -1, 1, 0, 2, Q("962.383766 mm")),
])
pocket5 = body.newObject("PartDesign::Pocket", "Pocket004")
pocket5.Profile = sketch6
pocket5.Length = 315.001

# Sketch on YZ plane
sketch7 = body.newObject("Sketcher::SketchObject", "Sketch006")
sketch7.AttachmentSupport = (doc.getObject("YZ_Plane"), [""])
sketch7.MapMode = "FlatFace"
sketch7.AttachmentOffset = App.Placement(V(0, 0, 264.383766), App.Rotation())
sketch7.addGeometry([
    Part.LineSegment(V(907, 2100, 0), V(907, 0, 0)),
    Part.LineSegment(V(907, 0, 0), V(259, 0, 0)),
    Part.LineSegment(V(259, 0, 0), V(259, 2100, 0)),
    Part.LineSegment(V(259, 2100, 0), V(907, 2100, 0)),
], False)
sketch7.addConstraint([
    Sketcher.Constraint("Coincident", 0, 2, 1, 1),
    Sketcher.Constraint("Coincident", 1, 2, 2, 1),
    Sketcher.Constraint("Coincident", 2, 2, 3, 1),
    Sketcher.Constraint("Coincident", 3, 2, 0, 1),
    Sketcher.Constraint("Vertical", 0),
    Sketcher.Constraint("Horizontal", 1),
    Sketcher.Constraint("Vertical", 2),
    Sketcher.Constraint("Horizontal", 3),
    Sketcher.Constraint("PointOnObject", 0, 2, -1),
    Sketcher.Constraint("DistanceX", 1, 2, 1, 1, Q("648 mm")),
    Sketcher.Constraint("DistanceY", 0, 2, 0, 1, Q("2100 mm")),
    Sketcher.Constraint("DistanceX", -1, 1, 0, 2, Q("906.945673 mm")),
])
pocket6 = body.newObject("PartDesign::Pocket", "Pocket005")
pocket6.Profile = sketch7
pocket6.Length = 150
pocket6.Reversed = True

# Sketch on YZ plane
sketch8 = body.newObject("Sketcher::SketchObject", "Sketch007")
sketch8.AttachmentSupport = (doc.getObject("YZ_Plane"), [""])
sketch8.MapMode = "FlatFace"
sketch8.AttachmentOffset = App.Placement(V(0, 0, 2109.894505), App.Rotation())
sketch8.addGeometry([
    Part.LineSegment(V(891, 2100, 0), V(891, 0, 0)),
    Part.LineSegment(V(891, 0, 0), V(243, 0, 0)),
    Part.LineSegment(V(243, 0, 0), V(243, 2100, 0)),
    Part.LineSegment(V(243, 2100, 0), V(891, 2100, 0)),
], False)
sketch8.addConstraint([
    Sketcher.Constraint("Coincident", 0, 2, 1, 1),
    Sketcher.Constraint("Coincident", 1, 2, 2, 1),
    Sketcher.Constraint("Coincident", 2, 2, 3, 1),
    Sketcher.Constraint("Coincident", 3, 2, 0, 1),
    Sketcher.Constraint("Vertical", 0),
    Sketcher.Constraint("Horizontal", 1),
    Sketcher.Constraint("Vertical", 2),
    Sketcher.Constraint("Horizontal", 3),
    Sketcher.Constraint("PointOnObject", 0, 2, -1),
    Sketcher.Constraint("DistanceX", 1, 2, 1, 1, Q("648 mm")),
    Sketcher.Constraint("DistanceY", 0, 2, 0, 1, Q("2100 mm")),
    Sketcher.Constraint("DistanceX", -1, 1, 0, 2, Q("891.365463 mm")),
])
pocket7 = body.newObject("PartDesign::Pocket", "Pocket006")
pocket7.Profile = sketch8
pocket7.Length = 150
pocket7.Reversed = True

# Sketch on XZ plane
sketch9 = body.newObject("Sketcher::SketchObject", "Sketch008")
sketch9.AttachmentSupport = (doc.getObject("XZ_Plane"), [""])
sketch9.MapMode = "FlatFace"
sketch9.AttachmentOffset = App.Placement(V(0, 0, -4156.805587), App.Rotation())
sketch9.addGeometry([
    Part.LineSegment(V(-1042, 2200, 0), V(-1042, 0, 0)),
    Part.LineSegment(V(-1042, 0, 0), V(0, 0, 0)),
    Part.LineSegment(V(0, 0, 0), V(0, 2200, 0)),
    Part.LineSegment(V(0, 2200, 0), V(-1042, 2200, 0)),
], False)
sketch9.addConstraint([
    Sketcher.Constraint("Coincident", 0, 2, 1, 1),
    Sketcher.Constraint("Coincident", 1, 2, 2, 1),
    Sketcher.Constraint("Coincident", 2, 2, 3, 1),
    Sketcher.Constraint("Coincident", 3, 2, 0, 1),
    Sketcher.Constraint("Vertical", 0),
    Sketcher.Constraint("Horizontal", 1),
    Sketcher.Constraint("Vertical", 2),
    Sketcher.Constraint("Horizontal", 3),
    Sketcher.Constraint("Coincident", 1, 2, -1, 1),
    Sketcher.Constraint("DistanceX", 1, 1, 1, 2, Q("1042 mm")),
    Sketcher.Constraint("DistanceY", 0, 2, 0, 1, Q("2200 mm")),
])
pocket8 = body.newObject("PartDesign::Pocket", "Pocket007")
pocket8.Profile = sketch9
pocket8.Type = "ThroughAll"

# Sketch on YZ plane
sketch10 = body.newObject("Sketcher::SketchObject", "Sketch009")
sketch10.AttachmentSupport = (doc.getObject("YZ_Plane"), [""])
sketch10.MapMode = "FlatFace"
sketch10.AttachmentOffset = App.Placement(V(0, 0, 4215.383766), App.Rotation())
sketch10.addGeometry([
    Part.LineSegment(V(2834, 2500, 0), V(2834, 0, 0)),
    Part.LineSegment(V(2834, 0, 0), V(1599, 0, 0)),
    Part.LineSegment(V(1599, 0, 0), V(1599, 2500, 0)),
    Part.LineSegment(V(1599, 2500, 0), V(2834, 2500, 0)),
], False)
sketch10.addConstraint([
    Sketcher.Constraint("Coincident", 0, 2, 1, 1),
    Sketcher.Constraint("Coincident", 1, 2, 2, 1),
    Sketcher.Constraint("Coincident", 2, 2, 3, 1),
    Sketcher.Constraint("Coincident", 3, 2, 0, 1),
    Sketcher.Constraint("Vertical", 0),
    Sketcher.Constraint("Horizontal", 1),
    Sketcher.Constraint("Vertical", 2),
    Sketcher.Constraint("Horizontal", 3),
    Sketcher.Constraint("PointOnObject", 0, 2, -1),
    Sketcher.Constraint("DistanceX", 1, 2, 1, 1, Q("1235 mm")),
    Sketcher.Constraint("DistanceY", 0, 2, 0, 1, Q("2500 mm")),
    Sketcher.Constraint("DistanceX", -1, 1, 0, 2, Q("2833.805587 mm")),
])
pocket9 = body.newObject("PartDesign::Pocket", "Pocket008")
pocket9.Profile = sketch10
pocket9.Type = "ThroughAll"
pocket9.Reversed = True

# Sketch on XZ plane
sketch11 = body.newObject("Sketcher::SketchObject", "Sketch010")
sketch11.AttachmentSupport = (doc.getObject("XZ_Plane"), [""])
sketch11.MapMode = "FlatFace"
sketch11.AttachmentOffset = App.Placement(V(0, 0, 1732.995391), App.Rotation())
sketch11.addGeometry([
    Part.LineSegment(V(-3411, 2100, 0), V(-3411, 0, 0)),
    Part.LineSegment(V(-3411, 0, 0), V(-2711, 0, 0)),
    Part.LineSegment(V(-2711, 0, 0), V(-2711, 2100, 0)),
    Part.LineSegment(V(-2711, 2100, 0), V(-3411, 2100, 0)),
], False)
sketch11.addConstraint([
    Sketcher.Constraint("Coincident", 0, 2, 1, 1),
    Sketcher.Constraint("Coincident", 1, 2, 2, 1),
    Sketcher.Constraint("Coincident", 2, 2, 3, 1),
    Sketcher.Constraint("Coincident", 3, 2, 0, 1),
    Sketcher.Constraint("Vertical", 0),
    Sketcher.Constraint("Horizontal", 1),
    Sketcher.Constraint("Vertical", 2),
    Sketcher.Constraint("Horizontal", 3),
    Sketcher.Constraint("PointOnObject", 0, 2, -1),
    Sketcher.Constraint("DistanceX", 1, 1, 1, 2, Q("700 mm")),
    Sketcher.Constraint("DistanceY", 0, 2, 0, 1, Q("2100 mm")),
    Sketcher.Constraint("DistanceX", 0, 2, -1, 1, Q("3410.9 mm")),
])
pocket10 = body.newObject("PartDesign::Pocket", "Pocket009")
pocket10.Profile = sketch11
pocket10.Length = 153.393907

# Sketch on XZ plane
sketch12 = body.newObject("Sketcher::SketchObject", "Sketch011")
sketch12.AttachmentSupport = (doc.getObject("XZ_Plane"), [""])
sketch12.MapMode = "FlatFace"
sketch12.AttachmentOffset = App.Placement(V(0, 0, -316), App.Rotation())
sketch12.addGeometry([
    Part.LineSegment(V(-3283, 2100, 0), V(-3283, 0, 0)),
    Part.LineSegment(V(-3283, 0, 0), V(-2489, 0, 0)),
    Part.LineSegment(V(-2489, 0, 0), V(-2489, 2100, 0)),
    Part.LineSegment(V(-2489, 2100, 0), V(-3283, 2100, 0)),
], False)
sketch12.addConstraint([
    Sketcher.Constraint("Coincident", 0, 2, 1, 1),
    Sketcher.Constraint("Coincident", 1, 2, 2, 1),
    Sketcher.Constraint("Coincident", 2, 2, 3, 1),
    Sketcher.Constraint("Coincident", 3, 2, 0, 1),
    Sketcher.Constraint("Vertical", 0),
    Sketcher.Constraint("Horizontal", 1),
    Sketcher.Constraint("Vertical", 2),
    Sketcher.Constraint("Horizontal", 3),
    Sketcher.Constraint("PointOnObject", 0, 2, -1),
    Sketcher.Constraint("DistanceX", 1, 1, 1, 2, Q("794 mm")),
    Sketcher.Constraint("DistanceY", 0, 2, 0, 1, Q("2100 mm")),
    Sketcher.Constraint("DistanceX", 0, 2, -1, 1, Q("3282.9 mm")),
])
pocket11 = body.newObject("PartDesign::Pocket", "Pocket010")
pocket11.Profile = sketch12
pocket11.Length = 225.097581

# Sketch on XZ plane
sketch13 = body.newObject("Sketcher::SketchObject", "Sketch012")
sketch13.AttachmentSupport = (doc.getObject("XZ_Plane"), [""])
sketch13.MapMode = "FlatFace"
sketch13.addGeometry([
    Part.LineSegment(V(-2014, 2100, 0), V(-2014, 0, 0)),
    Part.LineSegment(V(-2014, 0, 0), V(-1130, 0, 0)),
    Part.LineSegment(V(-1130, 0, 0), V(-1130, 2100, 0)),
    Part.LineSegment(V(-1130, 2100, 0), V(-2014, 2100, 0)),
], False)
sketch13.addConstraint([
    Sketcher.Constraint("Coincident", 0, 2, 1, 1),
    Sketcher.Constraint("Coincident", 1, 2, 2, 1),
    Sketcher.Constraint("Coincident", 2, 2, 3, 1),
    Sketcher.Constraint("Coincident", 3, 2, 0, 1),
    Sketcher.Constraint("Vertical", 0),
    Sketcher.Constraint("Horizontal", 1),
    Sketcher.Constraint("Vertical", 2),
    Sketcher.Constraint("Horizontal", 3),
    Sketcher.Constraint("PointOnObject", 0, 2, -1),
    Sketcher.Constraint("DistanceX", 1, 1, 1, 2, Q("884 mm")),
    Sketcher.Constraint("DistanceY", 0, 2, 0, 1, Q("2100 mm")),
    Sketcher.Constraint("DistanceX", 0, 2, -1, 1, Q("2013.616234 mm")),
])
pocket12 = body.newObject("PartDesign::Pocket", "Pocket011")
pocket12.Profile = sketch13
pocket12.Length = 150

# Sketch on YZ plane
sketch14 = body.newObject("Sketcher::SketchObject", "Sketch013")
sketch14.AttachmentSupport = (doc.getObject("YZ_Plane"), [""])
sketch14.MapMode = "FlatFace"
sketch14.AttachmentOffset = App.Placement(V(0, 0, -3472.9), App.Rotation())
sketch14.addGeometry([
    Part.LineSegment(V(-1039, 2100, 0), V(-1039, 0, 0)),
    Part.LineSegment(V(-1039, 0, 0), V(-393, 0, 0)),
    Part.LineSegment(V(-393, 0, 0), V(-393, 2100, 0)),
    Part.LineSegment(V(-393, 2100, 0), V(-1039, 2100, 0)),
], False)
sketch14.addConstraint([
    Sketcher.Constraint("Coincident", 0, 2, 1, 1),
    Sketcher.Constraint("Coincident", 1, 2, 2, 1),
    Sketcher.Constraint("Coincident", 2, 2, 3, 1),
    Sketcher.Constraint("Coincident", 3, 2, 0, 1),
    Sketcher.Constraint("Vertical", 0),
    Sketcher.Constraint("Horizontal", 1),
    Sketcher.Constraint("Vertical", 2),
    Sketcher.Constraint("Horizontal", 3),
    Sketcher.Constraint("PointOnObject", 0, 2, -1),
    Sketcher.Constraint("DistanceX", 1, 1, 1, 2, Q("646 mm")),
    Sketcher.Constraint("DistanceY", 0, 2, 0, 1, Q("2100 mm")),
    Sketcher.Constraint("DistanceX", 0, 2, -1, 1, Q("1039 mm")),
])
pocket13 = body.newObject("PartDesign::Pocket", "Pocket012")
pocket13.Profile = sketch14
pocket13.Length = 150

# Sketch on YZ plane
sketch15 = body.newObject("Sketcher::SketchObject", "Sketch014")
sketch15.AttachmentSupport = (doc.getObject("YZ_Plane"), [""])
sketch15.MapMode = "FlatFace"
sketch15.AttachmentOffset = App.Placement(V(0, 0, -6222.9), App.Rotation())
sketch15.addGeometry([
    Part.LineSegment(V(-1027, 2635, 0), V(-1027, 1085, 0)),
    Part.LineSegment(V(-1027, 1085, 0), V(-387, 1085, 0)),
    Part.LineSegment(V(-387, 1085, 0), V(-387, 2635, 0)),
    Part.LineSegment(V(-387, 2635, 0), V(-1027, 2635, 0)),
], False)
sketch15.addConstraint([
    Sketcher.Constraint("Coincident", 0, 2, 1, 1),
    Sketcher.Constraint("Coincident", 1, 2, 2, 1),
    Sketcher.Constraint("Coincident", 2, 2, 3, 1),
    Sketcher.Constraint("Coincident", 3, 2, 0, 1),
    Sketcher.Constraint("Vertical", 0),
    Sketcher.Constraint("Horizontal", 1),
    Sketcher.Constraint("Vertical", 2),
    Sketcher.Constraint("Horizontal", 3),
    Sketcher.Constraint("DistanceX", 1, 1, 1, 2, Q("640 mm")),
    Sketcher.Constraint("DistanceY", 0, 2, 0, 1, Q("1550 mm")),
    Sketcher.Constraint("DistanceY", -1, 1, 0, 2, Q("1085 mm")),
    Sketcher.Constraint("DistanceX", 0, 2, -1, 1, Q("1027.147807 mm")),
])
pocket14 = body.newObject("PartDesign::Pocket", "Pocket013")
pocket14.Profile = sketch15
pocket14.Type = "ThroughAll"

# Sketch on YZ plane
sketch16 = body.newObject("Sketcher::SketchObject", "Sketch015")
sketch16.AttachmentSupport = (doc.getObject("YZ_Plane"), [""])
sketch16.MapMode = "FlatFace"
sketch16.AttachmentOffset = App.Placement(V(0, 0, -6222.9), App.Rotation())
sketch16.addGeometry([
    Part.LineSegment(V(1401, 2635, 0), V(1401, 1085, 0)),
    Part.LineSegment(V(1401, 1085, 0), V(2839, 1085, 0)),
    Part.LineSegment(V(2839, 1085, 0), V(2839, 2635, 0)),
    Part.LineSegment(V(2839, 2635, 0), V(1401, 2635, 0)),
], False)
sketch16.addConstraint([
    Sketcher.Constraint("Coincident", 0, 2, 1, 1),
    Sketcher.Constraint("Coincident", 1, 2, 2, 1),
    Sketcher.Constraint("Coincident", 2, 2, 3, 1),
    Sketcher.Constraint("Coincident", 3, 2, 0, 1),
    Sketcher.Constraint("Vertical", 0),
    Sketcher.Constraint("Horizontal", 1),
    Sketcher.Constraint("Vertical", 2),
    Sketcher.Constraint("Horizontal", 3),
    Sketcher.Constraint("DistanceX", 1, 1, 1, 2, Q("1438 mm")),
    Sketcher.Constraint("DistanceY", 0, 2, 0, 1, Q("1550 mm")),
    Sketcher.Constraint("DistanceY", -1, 1, 0, 2, Q("1085 mm")),
    Sketcher.Constraint("DistanceX", -1, 1, 0, 2, Q("1400.805587 mm")),
])
pocket15 = body.newObject("PartDesign::Pocket", "Pocket014")
pocket15.Profile = sketch16
pocket15.Type = "ThroughAll"

# Sketch on XY plane
sketch17 = body.newObject("Sketcher::SketchObject", "Sketch016")
sketch17.AttachmentSupport = (doc.getObject("XY_Plane"), [""])
sketch17.MapMode = "FlatFace"
sketch17.addGeometry([
    Part.LineSegment(V(203, -6179, 0), V(-6377, -6179, 0)),  # 0
    Part.LineSegment(V(-6377, -6179, 0), V(-6373, 4306, 0)),  # 1
    Part.LineSegment(V(-6373, 4306, 0), V(4354, 4306, 0)),  # 2
    Part.LineSegment(V(4354, 4306, 0), V(4362, -4216, 0)),  # 3
    Part.LineSegment(V(4362, -4216, 0), V(4214, -4216, 0)),  # 4
    Part.LineSegment(V(4214, -4216, 0), V(4214, -5115, 0)),  # 5
    Part.LineSegment(V(4214, -5115, 0), V(203, -5115, 0)),  # 6
    Part.LineSegment(V(203, -5115, 0), V(203, -6179, 0)),  # 7
], False)
sketch17.addConstraint([
    Sketcher.Constraint("Coincident", 0, 2, 1, 1),
    Sketcher.Constraint("Coincident", 1, 2, 2, 1),
    Sketcher.Constraint("Coincident", 2, 2, 3, 1),
    Sketcher.Constraint("Coincident", 3, 2, 4, 1),
    Sketcher.Constraint("Coincident", 4, 2, 5, 1),
    Sketcher.Constraint("Coincident", 5, 2, 6, 1),
    Sketcher.Constraint("Coincident", 6, 2, 7, 1),
    Sketcher.Constraint("Coincident", 7, 2, 0, 1),
    Sketcher.Constraint("Horizontal", 0),
    Sketcher.Constraint("Horizontal", 2),
    Sketcher.Constraint("Horizontal", 4),
    Sketcher.Constraint("Vertical", 5),
    Sketcher.Constraint("Horizontal", 6),
    Sketcher.Constraint("Vertical", 7),
    Sketcher.Constraint("DistanceX", 0, 2, 0, 1, Q("6579.777628 mm")),
    Sketcher.Constraint("DistanceY", 0, 2, -1, 1, Q("6179.3046 mm")),
    Sketcher.Constraint("DistanceX", 2, 1, 2, 2, Q("10727.125168 mm")),
    Sketcher.Constraint("DistanceX", 4, 2, 4, 1, Q("147.637844 mm")),
    Sketcher.Constraint("DistanceX", 6, 2, 6, 1, Q("4011.237234 mm")),
    Sketcher.Constraint("DistanceY", 5, 2, 5, 1, Q("899.139404 mm")),
    Sketcher.Constraint("DistanceY", 7, 2, 7, 1, Q("1064.110756 mm")),
    Sketcher.Constraint("DistanceX", 1, 2, -1, 1, Q("6373.409748 mm")),
    Sketcher.Constraint("DistanceY", -1, 1, 1, 2, Q("4305.726528 mm")),
    Sketcher.Constraint("DistanceX", -1, 1, 3, 2, Q("4361.619949 mm")),
])
pad2 = body.newObject("PartDesign::Pad", "Pad001")
pad2.Profile = sketch17
pad2.Length = 200
pad2.Reversed = True

doc.recompute()
